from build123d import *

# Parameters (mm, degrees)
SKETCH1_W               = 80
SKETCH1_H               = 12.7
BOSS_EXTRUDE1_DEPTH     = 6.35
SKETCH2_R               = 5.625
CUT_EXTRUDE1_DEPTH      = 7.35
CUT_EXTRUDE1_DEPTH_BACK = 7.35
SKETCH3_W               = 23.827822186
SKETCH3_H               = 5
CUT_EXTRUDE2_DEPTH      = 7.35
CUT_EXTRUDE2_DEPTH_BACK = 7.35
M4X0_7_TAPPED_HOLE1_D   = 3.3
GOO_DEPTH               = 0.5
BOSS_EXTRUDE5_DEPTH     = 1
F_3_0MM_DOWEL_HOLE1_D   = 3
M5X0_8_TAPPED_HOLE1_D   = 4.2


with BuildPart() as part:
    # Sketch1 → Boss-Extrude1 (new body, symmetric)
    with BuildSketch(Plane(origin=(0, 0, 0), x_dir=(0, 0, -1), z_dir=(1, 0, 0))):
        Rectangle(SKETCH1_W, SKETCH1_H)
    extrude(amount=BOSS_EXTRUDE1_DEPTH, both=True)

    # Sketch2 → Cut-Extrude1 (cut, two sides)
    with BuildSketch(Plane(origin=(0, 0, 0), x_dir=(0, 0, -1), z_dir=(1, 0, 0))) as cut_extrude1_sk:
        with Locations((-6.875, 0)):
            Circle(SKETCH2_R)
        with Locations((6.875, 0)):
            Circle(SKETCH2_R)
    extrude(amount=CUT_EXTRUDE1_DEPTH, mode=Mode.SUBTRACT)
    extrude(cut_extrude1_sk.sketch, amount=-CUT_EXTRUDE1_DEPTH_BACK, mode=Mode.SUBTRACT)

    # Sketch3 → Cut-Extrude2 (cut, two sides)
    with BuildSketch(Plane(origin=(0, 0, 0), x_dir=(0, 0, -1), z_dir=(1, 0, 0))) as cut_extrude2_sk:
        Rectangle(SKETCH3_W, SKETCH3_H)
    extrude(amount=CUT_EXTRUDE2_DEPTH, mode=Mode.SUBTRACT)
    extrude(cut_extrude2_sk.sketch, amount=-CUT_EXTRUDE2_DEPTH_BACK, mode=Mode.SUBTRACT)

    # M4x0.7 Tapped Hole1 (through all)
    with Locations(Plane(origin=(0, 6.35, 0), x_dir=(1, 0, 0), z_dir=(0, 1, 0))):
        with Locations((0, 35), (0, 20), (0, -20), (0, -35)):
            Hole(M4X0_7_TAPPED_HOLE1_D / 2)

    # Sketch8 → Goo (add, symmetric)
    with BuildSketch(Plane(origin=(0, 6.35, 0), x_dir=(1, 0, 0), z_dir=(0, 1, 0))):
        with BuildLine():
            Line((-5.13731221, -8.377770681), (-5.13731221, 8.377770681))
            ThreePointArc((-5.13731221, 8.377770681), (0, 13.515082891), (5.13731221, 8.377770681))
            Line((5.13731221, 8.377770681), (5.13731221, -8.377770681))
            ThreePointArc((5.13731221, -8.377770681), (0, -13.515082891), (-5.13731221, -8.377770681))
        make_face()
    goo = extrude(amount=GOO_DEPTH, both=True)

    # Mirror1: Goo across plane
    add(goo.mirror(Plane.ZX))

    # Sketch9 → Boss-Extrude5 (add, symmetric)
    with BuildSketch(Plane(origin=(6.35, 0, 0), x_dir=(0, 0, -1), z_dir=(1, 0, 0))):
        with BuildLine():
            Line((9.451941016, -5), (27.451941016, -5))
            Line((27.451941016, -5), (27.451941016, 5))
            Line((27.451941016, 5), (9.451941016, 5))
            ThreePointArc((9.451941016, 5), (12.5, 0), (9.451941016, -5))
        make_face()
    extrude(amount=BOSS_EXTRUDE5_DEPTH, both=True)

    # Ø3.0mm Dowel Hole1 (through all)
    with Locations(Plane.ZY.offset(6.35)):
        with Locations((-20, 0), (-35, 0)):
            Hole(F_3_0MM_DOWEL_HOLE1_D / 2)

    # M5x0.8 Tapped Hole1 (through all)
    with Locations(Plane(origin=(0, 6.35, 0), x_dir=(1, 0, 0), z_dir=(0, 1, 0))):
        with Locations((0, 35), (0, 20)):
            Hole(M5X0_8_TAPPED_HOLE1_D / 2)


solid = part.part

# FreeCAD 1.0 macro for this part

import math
import FreeCAD as App
import Part
import Sketcher

V = App.Vector
Q = App.Units.Quantity


def add_polygon(sketch, points):
    """Adds a closed chain of lines whose ends are joined by coincident constraints."""
    first, n = sketch.GeometryCount, len(points)
    for a, b in zip(points, points[1:] + points[:1]):
        sketch.addGeometry(Part.LineSegment(App.Vector(*a, 0), App.Vector(*b, 0)), False)
    for i in range(n):
        sketch.addConstraint(Sketcher.Constraint("Coincident", first + i, 2, first + (i + 1) % n, 1))

doc = App.newDocument("Part")
body = doc.addObject("PartDesign::Body", "Body")

# Sketch on YZ plane
sketch1 = doc.addObject("Sketcher::SketchObject", "Sketch")
body.addObject(sketch1)
sketch1.AttachmentSupport = (doc.YZ_Plane, [""])
sketch1.MapMode = "FlatFace"
add_polygon(sketch1, [(6.35, 40), (-6.35, 40), (-6.35, -40), (6.35, -40)])  # lines 0-3
sketch1.addConstraint(Sketcher.Constraint("Horizontal", 0))
sketch1.addConstraint(Sketcher.Constraint("Vertical", 1))
sketch1.addConstraint(Sketcher.Constraint("Horizontal", 2))
sketch1.addConstraint(Sketcher.Constraint("Vertical", 3))
sketch1.addConstraint(Sketcher.Constraint("Symmetric", 0, 2, 2, 2, -1, 1))
sketch1.addConstraint(Sketcher.Constraint("DistanceY", 1, 2, 1, 1, Q("80 mm")))
sketch1.addConstraint(Sketcher.Constraint("DistanceX", 0, 2, 0, 1, Q("12.7 mm")))
pad1 = doc.addObject("PartDesign::Pad", "Pad")
body.addObject(pad1)
pad1.Profile = sketch1
pad1.Length = 12.7
pad1.Midplane = True

# Sketch on YZ plane
sketch2 = doc.addObject("Sketcher::SketchObject", "Sketch001")
body.addObject(sketch2)
sketch2.AttachmentSupport = (doc.YZ_Plane, [""])
sketch2.MapMode = "FlatFace"
sketch2.addGeometry(Part.Circle(V(0, 6.875, 0), V(0, 0, 1), 5.625), False)
sketch2.addGeometry(Part.Circle(V(0, -6.875, 0), V(0, 0, 1), 5.625), False)
sketch2.addConstraint(Sketcher.Constraint("Equal", 0, 1))
sketch2.addConstraint(Sketcher.Constraint("Symmetric", 0, 3, 1, 3, -1, 1))
sketch2.addConstraint(Sketcher.Constraint("PointOnObject", 0, 3, -2))
sketch2.addConstraint(Sketcher.Constraint("Diameter", 0, Q("11.25 mm")))
sketch2.addConstraint(Sketcher.Constraint("DistanceY", 1, 3, 0, 3, Q("13.75 mm")))
pocket1 = doc.addObject("PartDesign::Pocket", "Pocket")
body.addObject(pocket1)
pocket1.Profile = sketch2
pocket1.Type = "ThroughAll"
pocket1.Midplane = True

# Sketch on YZ plane
sketch3 = doc.addObject("Sketcher::SketchObject", "Sketch002")
body.addObject(sketch3)
sketch3.AttachmentSupport = (doc.YZ_Plane, [""])
sketch3.MapMode = "FlatFace"
add_polygon(sketch3, [(2.5, 11.913911), (-2.5, 11.913911), (-2.5, -11.913911), (2.5, -11.913911)])  # lines 0-3
sketch3.addConstraint(Sketcher.Constraint("Horizontal", 0))
sketch3.addConstraint(Sketcher.Constraint("Vertical", 1))
sketch3.addConstraint(Sketcher.Constraint("Horizontal", 2))
sketch3.addConstraint(Sketcher.Constraint("Vertical", 3))
sketch3.addConstraint(Sketcher.Constraint("Symmetric", 0, 2, 2, 2, -1, 1))
sketch3.addConstraint(Sketcher.Constraint("DistanceX", 0, 2, 0, 1, Q("5 mm")))
sketch3.addConstraint(Sketcher.Constraint("DistanceY", 1, 2, 1, 1, Q("23.827822 mm")))
pocket2 = doc.addObject("PartDesign::Pocket", "Pocket001")
body.addObject(pocket2)
pocket2.Profile = sketch3
pocket2.Type = "ThroughAll"
pocket2.Midplane = True

# Sketch on XZ plane
sketch4 = doc.addObject("Sketcher::SketchObject", "Sketch003")
body.addObject(sketch4)
sketch4.AttachmentSupport = (doc.XZ_Plane, [""])
sketch4.MapMode = "FlatFace"
sketch4.AttachmentOffset = App.Placement(V(0, 0, -6.35), App.Rotation())
sketch4.addGeometry(Part.Circle(V(0, -35, 0), V(0, 0, 1), 1.65), False)
sketch4.addGeometry(Part.Circle(V(0, -20, 0), V(0, 0, 1), 1.65), False)
sketch4.addGeometry(Part.Circle(V(0, 20, 0), V(0, 0, 1), 1.65), False)
sketch4.addGeometry(Part.Circle(V(0, 35, 0), V(0, 0, 1), 1.65), False)
sketch4.addConstraint(Sketcher.Constraint("Equal", 0, 1))
sketch4.addConstraint(Sketcher.Constraint("Equal", 1, 2))
sketch4.addConstraint(Sketcher.Constraint("Equal", 2, 3))
sketch4.addConstraint(Sketcher.Constraint("Symmetric", 1, 3, 2, 3, -1, 1))
sketch4.addConstraint(Sketcher.Constraint("Symmetric", 0, 3, 3, 3, -1, 1))
sketch4.addConstraint(Sketcher.Constraint("PointOnObject", 0, 3, -2))
sketch4.addConstraint(Sketcher.Constraint("PointOnObject", 1, 3, -2))
sketch4.addConstraint(Sketcher.Constraint("Diameter", 0, Q("3.3 mm")))
sketch4.addConstraint(Sketcher.Constraint("DistanceY", 0, 3, -1, 1, Q("35 mm")))
sketch4.addConstraint(Sketcher.Constraint("DistanceY", 1, 3, -1, 1, Q("20 mm")))
doc.recompute()
hole = doc.addObject("PartDesign::Hole", "Hole")
body.addObject(hole)
hole.Profile = sketch4
hole.ThreadType = "None"
hole.Diameter = 3.3
hole.DepthType = "ThroughAll"
hole.Reversed = True

# Sketch on XZ plane
sketch5 = doc.addObject("Sketcher::SketchObject", "Sketch004")
body.addObject(sketch5)
sketch5.AttachmentSupport = (doc.XZ_Plane, [""])
sketch5.MapMode = "FlatFace"
sketch5.AttachmentOffset = App.Placement(V(0, 0, -6.35), App.Rotation())
sketch5.addGeometry(Part.LineSegment(V(-5.137312, -8.377771, 0), V(-5.137312, 8.377771, 0)), False)
sketch5.addGeometry(Part.ArcOfCircle(Part.Circle(V(0, 8.377771, 0), V(0, 0, 1), 5.137312), math.radians(0), math.radians(180)), False)
sketch5.addGeometry(Part.LineSegment(V(5.137312, 8.377771, 0), V(5.137312, -8.377771, 0)), False)
sketch5.addGeometry(Part.ArcOfCircle(Part.Circle(V(0, -8.377771, 0), V(0, 0, 1), 5.137312), math.radians(180), math.radians(360)), False)
sketch5.addConstraint(Sketcher.Constraint("Tangent", 0, 2, 1, 2))
sketch5.addConstraint(Sketcher.Constraint("Tangent", 1, 1, 2, 1))
sketch5.addConstraint(Sketcher.Constraint("Tangent", 2, 2, 3, 2))
sketch5.addConstraint(Sketcher.Constraint("Tangent", 3, 1, 0, 1))
sketch5.addConstraint(Sketcher.Constraint("Vertical", 0))
sketch5.addConstraint(Sketcher.Constraint("Vertical", 2))
sketch5.addConstraint(Sketcher.Constraint("Symmetric", 1, 3, 3, 3, -1, 1))
sketch5.addConstraint(Sketcher.Constraint("Radius", 1, Q("5.137312 mm")))
sketch5.addConstraint(Sketcher.Constraint("DistanceY", 0, 1, 0, 2, Q("16.755541 mm")))
pad2 = doc.addObject("PartDesign::Pad", "Pad001")
body.addObject(pad2)
pad2.Profile = sketch5
pad2.Length = 1
pad2.Midplane = True
doc.recompute()

mirrored = doc.addObject("PartDesign::Mirrored", "Mirrored")
body.addObject(mirrored)
mirrored.Originals = [pad2]
mirrored.MirrorPlane = (doc.XZ_Plane, [""])
body.Tip = mirrored

# Sketch on YZ plane
sketch6 = doc.addObject("Sketcher::SketchObject", "Sketch005")
body.addObject(sketch6)
sketch6.AttachmentSupport = (doc.YZ_Plane, [""])
sketch6.MapMode = "FlatFace"
sketch6.AttachmentOffset = App.Placement(V(0, 0, 6.35), App.Rotation())
sketch6.addGeometry(Part.LineSegment(V(-5, -9.451941, 0), V(-5, -27.451941, 0)), False)
sketch6.addGeometry(Part.LineSegment(V(-5, -27.451941, 0), V(5, -27.451941, 0)), False)
sketch6.addGeometry(Part.LineSegment(V(5, -27.451941, 0), V(5, -9.451941, 0)), False)
sketch6.addGeometry(Part.ArcOfCircle(Part.Circle(V(0, -6.875, 0), V(0, 0, 1), 5.625), math.radians(-152.733956), math.radians(-27.266044)), False)
sketch6.addConstraint(Sketcher.Constraint("Coincident", 0, 2, 1, 1))
sketch6.addConstraint(Sketcher.Constraint("Coincident", 1, 2, 2, 1))
sketch6.addConstraint(Sketcher.Constraint("Coincident", 2, 2, 3, 2))
sketch6.addConstraint(Sketcher.Constraint("Coincident", 3, 1, 0, 1))
sketch6.addConstraint(Sketcher.Constraint("Vertical", 0))
sketch6.addConstraint(Sketcher.Constraint("Horizontal", 1))
sketch6.addConstraint(Sketcher.Constraint("Vertical", 2))
sketch6.addConstraint(Sketcher.Constraint("Symmetric", 2, 2, 3, 1, -2))
sketch6.addConstraint(Sketcher.Constraint("DistanceX", 1, 1, 1, 2, Q("10 mm")))
sketch6.addConstraint(Sketcher.Constraint("DistanceY", 0, 2, 0, 1, Q("18 mm")))
sketch6.addConstraint(Sketcher.Constraint("Radius", 3, Q("5.625 mm")))
sketch6.addConstraint(Sketcher.Constraint("DistanceY", 3, 3, -1, 1, Q("6.875 mm")))
pad3 = doc.addObject("PartDesign::Pad", "Pad002")
body.addObject(pad3)
pad3.Profile = sketch6
pad3.Length = 2
pad3.Midplane = True

# Sketch on YZ plane
sketch7 = doc.addObject("Sketcher::SketchObject", "Sketch006")
body.addObject(sketch7)
sketch7.AttachmentSupport = (doc.YZ_Plane, [""])
sketch7.MapMode = "FlatFace"
sketch7.AttachmentOffset = App.Placement(V(0, 0, -6.35), App.Rotation())
sketch7.addGeometry(Part.Circle(V(0, -20, 0), V(0, 0, 1), 1.5), False)
sketch7.addGeometry(Part.Circle(V(0, -35, 0), V(0, 0, 1), 1.5), False)
sketch7.addConstraint(Sketcher.Constraint("Equal", 0, 1))
sketch7.addConstraint(Sketcher.Constraint("PointOnObject", 0, 3, -2))
sketch7.addConstraint(Sketcher.Constraint("PointOnObject", 1, 3, -2))
sketch7.addConstraint(Sketcher.Constraint("Diameter", 0, Q("3 mm")))
sketch7.addConstraint(Sketcher.Constraint("DistanceY", 0, 3, -1, 1, Q("20 mm")))
sketch7.addConstraint(Sketcher.Constraint("DistanceY", 1, 3, -1, 1, Q("35 mm")))
doc.recompute()
hole2 = doc.addObject("PartDesign::Hole", "Hole001")
body.addObject(hole2)
hole2.Profile = sketch7
hole2.ThreadType = "None"
hole2.Diameter = 3
hole2.DepthType = "ThroughAll"
hole2.Reversed = True

# Sketch on XZ plane
sketch8 = doc.addObject("Sketcher::SketchObject", "Sketch007")
body.addObject(sketch8)
sketch8.AttachmentSupport = (doc.XZ_Plane, [""])
sketch8.MapMode = "FlatFace"
sketch8.AttachmentOffset = App.Placement(V(0, 0, -6.35), App.Rotation())
sketch8.addGeometry(Part.Circle(V(0, -35, 0), V(0, 0, 1), 2.1), False)
sketch8.addGeometry(Part.Circle(V(0, -20, 0), V(0, 0, 1), 2.1), False)
sketch8.addConstraint(Sketcher.Constraint("Equal", 0, 1))
sketch8.addConstraint(Sketcher.Constraint("PointOnObject", 0, 3, -2))
sketch8.addConstraint(Sketcher.Constraint("PointOnObject", 1, 3, -2))
sketch8.addConstraint(Sketcher.Constraint("Diameter", 0, Q("4.2 mm")))
sketch8.addConstraint(Sketcher.Constraint("DistanceY", 0, 3, -1, 1, Q("35 mm")))
sketch8.addConstraint(Sketcher.Constraint("DistanceY", 1, 3, -1, 1, Q("20 mm")))
doc.recompute()
hole3 = doc.addObject("PartDesign::Hole", "Hole002")
body.addObject(hole3)
hole3.Profile = sketch8
hole3.ThreadType = "None"
hole3.Diameter = 4.2
hole3.DepthType = "ThroughAll"
hole3.Reversed = True

doc.recompute()
